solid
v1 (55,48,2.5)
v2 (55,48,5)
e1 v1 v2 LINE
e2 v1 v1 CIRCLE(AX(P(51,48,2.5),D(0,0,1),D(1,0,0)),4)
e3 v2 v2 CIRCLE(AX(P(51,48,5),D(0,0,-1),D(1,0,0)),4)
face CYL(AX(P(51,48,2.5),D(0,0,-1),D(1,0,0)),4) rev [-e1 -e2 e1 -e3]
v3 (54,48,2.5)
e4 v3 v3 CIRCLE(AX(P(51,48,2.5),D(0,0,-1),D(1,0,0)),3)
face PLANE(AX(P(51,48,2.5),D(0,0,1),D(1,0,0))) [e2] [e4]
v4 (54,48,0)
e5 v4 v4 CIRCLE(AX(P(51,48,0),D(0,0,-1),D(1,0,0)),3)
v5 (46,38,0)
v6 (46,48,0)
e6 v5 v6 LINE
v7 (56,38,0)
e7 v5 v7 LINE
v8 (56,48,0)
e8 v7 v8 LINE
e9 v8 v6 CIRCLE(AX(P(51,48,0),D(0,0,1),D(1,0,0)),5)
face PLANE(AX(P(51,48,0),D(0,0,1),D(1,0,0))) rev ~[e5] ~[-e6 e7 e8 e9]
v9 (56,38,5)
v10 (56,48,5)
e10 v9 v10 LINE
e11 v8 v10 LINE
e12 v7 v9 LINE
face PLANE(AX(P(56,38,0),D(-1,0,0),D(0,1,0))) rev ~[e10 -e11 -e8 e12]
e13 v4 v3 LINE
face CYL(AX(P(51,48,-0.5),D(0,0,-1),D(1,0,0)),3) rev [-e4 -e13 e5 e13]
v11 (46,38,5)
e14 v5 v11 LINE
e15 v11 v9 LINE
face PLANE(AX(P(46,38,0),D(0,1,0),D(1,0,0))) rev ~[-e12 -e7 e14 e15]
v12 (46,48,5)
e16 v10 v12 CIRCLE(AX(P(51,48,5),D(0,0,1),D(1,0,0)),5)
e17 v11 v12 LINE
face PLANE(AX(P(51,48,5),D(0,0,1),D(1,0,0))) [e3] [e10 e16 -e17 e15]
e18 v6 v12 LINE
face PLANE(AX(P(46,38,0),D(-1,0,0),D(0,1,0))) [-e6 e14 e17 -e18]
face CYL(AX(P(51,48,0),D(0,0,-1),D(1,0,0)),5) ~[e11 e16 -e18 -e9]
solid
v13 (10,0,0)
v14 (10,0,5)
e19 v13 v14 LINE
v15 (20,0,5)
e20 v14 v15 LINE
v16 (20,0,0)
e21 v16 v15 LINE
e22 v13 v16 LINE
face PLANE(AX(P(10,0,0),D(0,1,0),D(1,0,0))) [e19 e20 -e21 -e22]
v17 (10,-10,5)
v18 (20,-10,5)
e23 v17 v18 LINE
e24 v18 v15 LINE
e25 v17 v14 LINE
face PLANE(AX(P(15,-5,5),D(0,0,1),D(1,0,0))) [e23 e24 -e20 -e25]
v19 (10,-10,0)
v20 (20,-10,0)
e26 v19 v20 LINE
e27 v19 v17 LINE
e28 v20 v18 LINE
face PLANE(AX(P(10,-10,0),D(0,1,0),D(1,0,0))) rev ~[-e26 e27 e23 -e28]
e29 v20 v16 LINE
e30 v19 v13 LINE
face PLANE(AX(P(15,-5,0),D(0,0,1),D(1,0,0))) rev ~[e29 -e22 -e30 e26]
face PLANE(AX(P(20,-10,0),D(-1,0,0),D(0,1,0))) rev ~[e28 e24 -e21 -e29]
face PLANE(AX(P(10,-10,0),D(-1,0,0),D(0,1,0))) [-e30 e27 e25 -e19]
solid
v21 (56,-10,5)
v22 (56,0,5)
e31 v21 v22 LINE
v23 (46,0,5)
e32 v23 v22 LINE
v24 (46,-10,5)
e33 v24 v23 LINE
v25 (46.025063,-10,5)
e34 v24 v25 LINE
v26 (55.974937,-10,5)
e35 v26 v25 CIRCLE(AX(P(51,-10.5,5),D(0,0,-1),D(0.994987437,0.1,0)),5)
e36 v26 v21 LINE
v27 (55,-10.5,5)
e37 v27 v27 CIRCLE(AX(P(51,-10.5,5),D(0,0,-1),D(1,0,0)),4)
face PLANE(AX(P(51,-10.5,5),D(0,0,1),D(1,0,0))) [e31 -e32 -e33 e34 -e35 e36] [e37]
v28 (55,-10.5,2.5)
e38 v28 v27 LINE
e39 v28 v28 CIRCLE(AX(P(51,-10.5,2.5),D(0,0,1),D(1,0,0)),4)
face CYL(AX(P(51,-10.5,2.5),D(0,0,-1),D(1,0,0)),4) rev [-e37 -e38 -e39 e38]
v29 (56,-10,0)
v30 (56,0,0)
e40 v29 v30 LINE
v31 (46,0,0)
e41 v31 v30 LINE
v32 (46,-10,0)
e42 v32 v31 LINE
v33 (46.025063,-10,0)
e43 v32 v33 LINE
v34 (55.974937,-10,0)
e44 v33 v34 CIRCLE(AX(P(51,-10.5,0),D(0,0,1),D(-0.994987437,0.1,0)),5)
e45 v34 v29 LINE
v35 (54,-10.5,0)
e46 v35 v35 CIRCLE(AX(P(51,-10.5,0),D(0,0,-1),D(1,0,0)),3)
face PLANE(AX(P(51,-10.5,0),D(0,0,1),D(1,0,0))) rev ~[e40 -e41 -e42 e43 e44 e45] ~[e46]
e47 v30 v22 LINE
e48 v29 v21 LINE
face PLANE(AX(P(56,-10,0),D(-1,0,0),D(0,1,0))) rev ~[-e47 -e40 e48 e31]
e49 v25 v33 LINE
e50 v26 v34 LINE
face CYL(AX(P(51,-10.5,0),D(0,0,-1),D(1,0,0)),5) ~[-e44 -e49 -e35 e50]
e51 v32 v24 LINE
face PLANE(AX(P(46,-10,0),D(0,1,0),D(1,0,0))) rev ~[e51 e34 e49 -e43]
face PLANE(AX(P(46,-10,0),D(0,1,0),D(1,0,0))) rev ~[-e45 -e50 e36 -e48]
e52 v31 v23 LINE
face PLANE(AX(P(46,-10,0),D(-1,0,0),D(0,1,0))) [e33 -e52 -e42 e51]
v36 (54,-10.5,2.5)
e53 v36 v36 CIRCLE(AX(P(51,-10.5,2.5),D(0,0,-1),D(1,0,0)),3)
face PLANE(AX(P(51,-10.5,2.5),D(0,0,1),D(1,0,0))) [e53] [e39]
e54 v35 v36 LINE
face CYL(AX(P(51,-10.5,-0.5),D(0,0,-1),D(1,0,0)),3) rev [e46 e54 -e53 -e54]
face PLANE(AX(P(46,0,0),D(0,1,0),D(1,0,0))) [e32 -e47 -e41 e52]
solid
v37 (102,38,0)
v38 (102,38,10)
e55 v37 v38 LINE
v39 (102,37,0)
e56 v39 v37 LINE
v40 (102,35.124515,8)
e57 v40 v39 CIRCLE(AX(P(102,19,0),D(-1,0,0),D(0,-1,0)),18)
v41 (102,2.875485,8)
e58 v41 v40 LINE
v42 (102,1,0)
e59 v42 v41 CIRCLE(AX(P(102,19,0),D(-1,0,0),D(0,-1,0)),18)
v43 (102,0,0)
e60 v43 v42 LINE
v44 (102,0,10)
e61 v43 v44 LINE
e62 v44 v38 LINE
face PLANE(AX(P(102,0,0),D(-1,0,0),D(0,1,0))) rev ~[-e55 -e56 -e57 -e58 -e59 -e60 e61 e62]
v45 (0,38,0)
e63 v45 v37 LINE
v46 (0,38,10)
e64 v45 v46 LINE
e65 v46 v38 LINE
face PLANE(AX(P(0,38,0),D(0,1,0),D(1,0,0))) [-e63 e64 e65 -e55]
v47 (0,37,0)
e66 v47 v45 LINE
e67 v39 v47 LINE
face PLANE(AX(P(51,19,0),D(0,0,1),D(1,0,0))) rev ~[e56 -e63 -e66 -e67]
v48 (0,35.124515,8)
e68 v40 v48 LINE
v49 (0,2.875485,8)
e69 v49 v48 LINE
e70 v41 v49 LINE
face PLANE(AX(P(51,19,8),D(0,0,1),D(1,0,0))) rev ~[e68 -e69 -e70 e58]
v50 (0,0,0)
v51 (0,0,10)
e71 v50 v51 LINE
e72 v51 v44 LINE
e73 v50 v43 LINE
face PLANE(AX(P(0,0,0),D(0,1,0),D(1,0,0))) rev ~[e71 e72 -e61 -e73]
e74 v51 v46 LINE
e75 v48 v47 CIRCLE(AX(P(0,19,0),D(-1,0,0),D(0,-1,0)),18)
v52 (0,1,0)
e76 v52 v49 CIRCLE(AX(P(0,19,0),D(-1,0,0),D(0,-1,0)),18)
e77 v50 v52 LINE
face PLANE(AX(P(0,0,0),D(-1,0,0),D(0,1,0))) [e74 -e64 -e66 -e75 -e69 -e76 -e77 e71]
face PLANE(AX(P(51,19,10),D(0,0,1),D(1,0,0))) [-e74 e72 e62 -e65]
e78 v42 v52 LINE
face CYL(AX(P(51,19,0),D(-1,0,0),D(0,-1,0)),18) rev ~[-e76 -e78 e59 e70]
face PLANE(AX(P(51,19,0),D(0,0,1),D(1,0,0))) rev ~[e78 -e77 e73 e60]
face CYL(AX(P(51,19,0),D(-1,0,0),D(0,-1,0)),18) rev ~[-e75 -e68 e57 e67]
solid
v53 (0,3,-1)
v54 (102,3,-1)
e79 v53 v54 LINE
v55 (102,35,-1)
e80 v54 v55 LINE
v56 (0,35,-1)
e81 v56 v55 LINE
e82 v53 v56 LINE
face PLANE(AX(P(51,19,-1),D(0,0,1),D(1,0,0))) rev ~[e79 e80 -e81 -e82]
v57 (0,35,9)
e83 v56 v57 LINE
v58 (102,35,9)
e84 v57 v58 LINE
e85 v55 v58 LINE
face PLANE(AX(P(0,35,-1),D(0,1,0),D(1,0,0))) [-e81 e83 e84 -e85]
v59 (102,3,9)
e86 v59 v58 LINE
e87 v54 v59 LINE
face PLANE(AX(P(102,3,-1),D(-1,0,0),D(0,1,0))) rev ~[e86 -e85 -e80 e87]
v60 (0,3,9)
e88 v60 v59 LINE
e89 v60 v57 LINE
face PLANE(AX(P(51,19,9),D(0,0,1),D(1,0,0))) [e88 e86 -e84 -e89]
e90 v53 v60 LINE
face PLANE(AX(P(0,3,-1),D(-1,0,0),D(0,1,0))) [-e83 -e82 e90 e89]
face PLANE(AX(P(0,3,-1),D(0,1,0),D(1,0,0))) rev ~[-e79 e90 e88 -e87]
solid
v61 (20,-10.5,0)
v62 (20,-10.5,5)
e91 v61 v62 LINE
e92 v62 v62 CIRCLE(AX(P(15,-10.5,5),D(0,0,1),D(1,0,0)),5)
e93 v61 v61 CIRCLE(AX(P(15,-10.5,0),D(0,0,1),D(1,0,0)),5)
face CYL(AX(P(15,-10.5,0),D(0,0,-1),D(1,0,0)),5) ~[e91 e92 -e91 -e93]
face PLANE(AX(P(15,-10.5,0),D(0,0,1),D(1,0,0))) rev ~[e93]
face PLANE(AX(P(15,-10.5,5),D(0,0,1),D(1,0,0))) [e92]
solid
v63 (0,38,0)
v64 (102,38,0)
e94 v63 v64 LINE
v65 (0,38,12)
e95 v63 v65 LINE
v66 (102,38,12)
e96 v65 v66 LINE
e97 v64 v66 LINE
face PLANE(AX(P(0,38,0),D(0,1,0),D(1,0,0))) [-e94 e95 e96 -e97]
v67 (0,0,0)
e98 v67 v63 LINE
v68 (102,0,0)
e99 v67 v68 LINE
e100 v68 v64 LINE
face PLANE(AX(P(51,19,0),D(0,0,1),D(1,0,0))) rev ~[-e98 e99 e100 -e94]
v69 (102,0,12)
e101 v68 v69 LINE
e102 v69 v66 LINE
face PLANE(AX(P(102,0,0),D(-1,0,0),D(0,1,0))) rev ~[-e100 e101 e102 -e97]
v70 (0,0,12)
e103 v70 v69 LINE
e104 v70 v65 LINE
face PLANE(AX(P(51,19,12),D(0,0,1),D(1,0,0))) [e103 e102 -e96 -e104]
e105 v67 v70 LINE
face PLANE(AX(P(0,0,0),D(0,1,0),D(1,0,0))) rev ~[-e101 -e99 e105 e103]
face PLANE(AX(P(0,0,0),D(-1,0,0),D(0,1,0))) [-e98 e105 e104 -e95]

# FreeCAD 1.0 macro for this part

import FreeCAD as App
import Part
import Sketcher

V = App.Vector


def add_polygon(sketch, points):
    """Adds a closed chain of lines whose ends are joined by coincident constraints."""
    first, n = sketch.GeometryCount, len(points)
    for a, b in zip(points, points[1:] + points[:1]):
        sketch.addGeometry(Part.LineSegment(App.Vector(*a, 0), App.Vector(*b, 0)), False)
    for i in range(n):
        sketch.addConstraint(Sketcher.Constraint("Coincident", first + i, 2, first + (i + 1) % n, 1))

doc = App.newDocument("Part")
body = doc.addObject("PartDesign::Body", "Body")

sketch1 = body.newObject("Sketcher::SketchObject", "Sketch")
sketch1.AttachmentSupport = (doc.getObject("XY_Plane"), [""])
sketch1.MapMode = "FlatFace"
sketch1.AttachmentOffset = App.Placement(V(0, 0, 8), App.Rotation())
add_polygon(sketch1, [(0, 38), (0, 0), (102, 0), (102, 38)])
sketch1.addConstraint(Sketcher.Constraint("Vertical", 0))
sketch1.addConstraint(Sketcher.Constraint("Horizontal", 1))
sketch1.addConstraint(Sketcher.Constraint("Vertical", 2))
sketch1.addConstraint(Sketcher.Constraint("Horizontal", 3))
sketch1.addConstraint(Sketcher.Constraint("Coincident", 0, 2, -1, 1))
sketch1.addConstraint(Sketcher.Constraint("DistanceX", 1, 1, 1, 2, 102.0))
sketch1.addConstraint(Sketcher.Constraint("DistanceY", 0, 2, 0, 1, 38.0))
pad1 = body.newObject("PartDesign::Pad", "Pad")
pad1.Profile = sketch1
pad1.Length = 10
body2 = doc.addObject("PartDesign::Body", "Body001")

sketch2 = body2.newObject("Sketcher::SketchObject", "Sketch001")
sketch2.AttachmentSupport = (doc.getObject("XY_Plane001"), [""])
sketch2.MapMode = "FlatFace"
add_polygon(sketch2, [(0, 19), (102, 19), (102, 1), (0, 1)])
sketch2.addGeometry(Part.LineSegment(V(102, 19, 0), V(0, 19, 0)), True)
sketch2.addConstraint(Sketcher.Constraint("Horizontal", 0))
sketch2.addConstraint(Sketcher.Constraint("Vertical", 1))
sketch2.addConstraint(Sketcher.Constraint("Horizontal", 2))
sketch2.addConstraint(Sketcher.Constraint("Vertical", 3))
sketch2.addConstraint(Sketcher.Constraint("Horizontal", 4))
sketch2.addConstraint(Sketcher.Constraint("Coincident", 4, 1, 0, 2))
sketch2.addConstraint(Sketcher.Constraint("PointOnObject", 2, 2, -2))
sketch2.addConstraint(Sketcher.Constraint("PointOnObject", 4, 2, -2))
sketch2.addConstraint(Sketcher.Constraint("DistanceX", 0, 1, 0, 2, 102.0))
sketch2.addConstraint(Sketcher.Constraint("DistanceY", 1, 2, 1, 1, 18.0))
sketch2.addConstraint(Sketcher.Constraint("DistanceY", -1, 1, 0, 2, 19.0))
revolution = body2.newObject("PartDesign::Revolution", "Revolution")
revolution.Profile = sketch2
revolution.ReferenceAxis = (sketch2, ["Axis0"])
revolution.Angle = 180
doc.recompute()

boolean = body2.newObject("PartDesign::Boolean", "Boolean")
boolean.Type = "Cut"
boolean.addObjects([body])
body3 = doc.addObject("PartDesign::Body", "Body002")

sketch3 = body3.newObject("Sketcher::SketchObject", "Sketch002")
sketch3.AttachmentSupport = (doc.getObject("XY_Plane002"), [""])
sketch3.MapMode = "FlatFace"
add_polygon(sketch3, [(0, 38), (0, 0), (102, 0), (102, 38)])
sketch3.addConstraint(Sketcher.Constraint("Vertical", 0))
sketch3.addConstraint(Sketcher.Constraint("Horizontal", 1))
sketch3.addConstraint(Sketcher.Constraint("Vertical", 2))
sketch3.addConstraint(Sketcher.Constraint("Horizontal", 3))
sketch3.addConstraint(Sketcher.Constraint("Coincident", 0, 2, -1, 1))
sketch3.addConstraint(Sketcher.Constraint("DistanceX", 1, 1, 1, 2, 102.0))
sketch3.addConstraint(Sketcher.Constraint("DistanceY", 0, 2, 0, 1, 38.0))
pad2 = body3.newObject("PartDesign::Pad", "Pad001")
pad2.Profile = sketch3
pad2.Length = 10
doc.recompute()

boolean2 = body3.newObject("PartDesign::Boolean", "Boolean001")
boolean2.Type = "Cut"
boolean2.addObjects([body2])
body4 = doc.addObject("PartDesign::Body", "Body003")

sketch4 = body4.newObject("Sketcher::SketchObject", "Sketch003")
sketch4.AttachmentSupport = (doc.getObject("XY_Plane003"), [""])
sketch4.MapMode = "FlatFace"
add_polygon(sketch4, [(10, 0), (10, -10), (20, -10), (20, 0)])
sketch4.addConstraint(Sketcher.Constraint("Vertical", 0))
sketch4.addConstraint(Sketcher.Constraint("Horizontal", 1))
sketch4.addConstraint(Sketcher.Constraint("Vertical", 2))
sketch4.addConstraint(Sketcher.Constraint("Horizontal", 3))
sketch4.addConstraint(Sketcher.Constraint("PointOnObject", 2, 2, -1))
sketch4.addConstraint(Sketcher.Constraint("Equal", 3, 0))
sketch4.addConstraint(Sketcher.Constraint("DistanceX", 1, 1, 1, 2, 10.0))
sketch4.addConstraint(Sketcher.Constraint("DistanceX", -1, 1, 0, 2, 10.0))
pad3 = body4.newObject("PartDesign::Pad", "Pad002")
pad3.Profile = sketch4
pad3.Length = 5
body5 = doc.addObject("PartDesign::Body", "Body004")

sketch5 = body5.newObject("Sketcher::SketchObject", "Sketch004")
sketch5.AttachmentSupport = (doc.getObject("XY_Plane004"), [""])
sketch5.MapMode = "FlatFace"
sketch5.addGeometry(Part.Circle(V(15, -10, 0), V(0, 0, 1), 5), False)
sketch5.addConstraint(Sketcher.Constraint("Diameter", 0, 10.0))
sketch5.addConstraint(Sketcher.Constraint("DistanceX", -1, 1, 0, 3, 15.0))
sketch5.addConstraint(Sketcher.Constraint("DistanceY", 0, 3, -1, 1, 10.5))
pad4 = body5.newObject("PartDesign::Pad", "Pad003")
pad4.Profile = sketch5
pad4.Length = 5
body6 = doc.addObject("PartDesign::Body", "Body005")

sketch6 = body6.newObject("Sketcher::SketchObject", "Sketch005")
sketch6.AttachmentSupport = (doc.getObject("XY_Plane005"), [""])
sketch6.MapMode = "FlatFace"
sketch6.AttachmentOffset = App.Placement(V(0, 0, -0.5), App.Rotation())
sketch6.addGeometry(Part.Circle(V(51, -10.5, 0), V(0, 0, 1), 3), False)
sketch6.addConstraint(Sketcher.Constraint("Diameter", 0, 6.0))
sketch6.addConstraint(Sketcher.Constraint("DistanceX", -1, 1, 0, 3, 51.0))
sketch6.addConstraint(Sketcher.Constraint("DistanceY", 0, 3, -1, 1, 10.5))
pad5 = body6.newObject("PartDesign::Pad", "Pad004")
pad5.Profile = sketch6
pad5.Length = 5
body7 = doc.addObject("PartDesign::Body", "Body006")

sketch7 = body7.newObject("Sketcher::SketchObject", "Sketch006")
sketch7.AttachmentSupport = (doc.getObject("XY_Plane006"), [""])
sketch7.MapMode = "FlatFace"
sketch7.AttachmentOffset = App.Placement(V(0, 0, 2.5), App.Rotation())
sketch7.addGeometry(Part.Circle(V(51, -10.5, 0), V(0, 0, 1), 4), False)
sketch7.addConstraint(Sketcher.Constraint("Diameter", 0, 8.0))
sketch7.addConstraint(Sketcher.Constraint("DistanceX", -1, 1, 0, 3, 51.0))
sketch7.addConstraint(Sketcher.Constraint("DistanceY", 0, 3, -1, 1, 10.5))
pad6 = body7.newObject("PartDesign::Pad", "Pad005")
pad6.Profile = sketch7
pad6.Length = 5
body8 = doc.addObject("PartDesign::Body", "Body007")

sketch8 = body8.newObject("Sketcher::SketchObject", "Sketch007")
sketch8.AttachmentSupport = (doc.getObject("XY_Plane007"), [""])
sketch8.MapMode = "FlatFace"
sketch8.addGeometry(Part.Circle(V(51, -10, 0), V(0, 0, 1), 5), False)
sketch8.addConstraint(Sketcher.Constraint("Diameter", 0, 10.0))
sketch8.addConstraint(Sketcher.Constraint("DistanceX", -1, 1, 0, 3, 51.0))
sketch8.addConstraint(Sketcher.Constraint("DistanceY", 0, 3, -1, 1, 10.5))
pad7 = body8.newObject("PartDesign::Pad", "Pad006")
pad7.Profile = sketch8
pad7.Length = 5
body9 = doc.addObject("PartDesign::Body", "Body008")

sketch9 = body9.newObject("Sketcher::SketchObject", "Sketch008")
sketch9.AttachmentSupport = (doc.getObject("XY_Plane008"), [""])
sketch9.MapMode = "FlatFace"
add_polygon(sketch9, [(46, 0), (46, -10), (56, -10), (56, 0)])
sketch9.addConstraint(Sketcher.Constraint("Vertical", 0))
sketch9.addConstraint(Sketcher.Constraint("Horizontal", 1))
sketch9.addConstraint(Sketcher.Constraint("Vertical", 2))
sketch9.addConstraint(Sketcher.Constraint("Horizontal", 3))
sketch9.addConstraint(Sketcher.Constraint("PointOnObject", 2, 2, -1))
sketch9.addConstraint(Sketcher.Constraint("Equal", 3, 0))
sketch9.addConstraint(Sketcher.Constraint("DistanceX", 1, 1, 1, 2, 10.0))
sketch9.addConstraint(Sketcher.Constraint("DistanceX", -1, 1, 0, 2, 46.0))
pad8 = body9.newObject("PartDesign::Pad", "Pad007")
pad8.Profile = sketch9
pad8.Length = 5
doc.recompute()

boolean3 = body9.newObject("PartDesign::Boolean", "Boolean002")
boolean3.Type = "Fuse"
boolean3.addObjects([body8])
doc.recompute()

boolean4 = body9.newObject("PartDesign::Boolean", "Boolean003")
boolean4.Type = "Cut"
boolean4.addObjects([body7])
doc.recompute()

boolean5 = body9.newObject("PartDesign::Boolean", "Boolean004")
boolean5.Type = "Cut"
boolean5.addObjects([body6])
body10 = doc.addObject("PartDesign::Body", "Body009")

sketch10 = body10.newObject("Sketcher::SketchObject", "Sketch009")
sketch10.AttachmentSupport = (doc.getObject("XY_Plane009"), [""])
sketch10.MapMode = "FlatFace"
sketch10.AttachmentOffset = App.Placement(V(0, 0, -0.5), App.Rotation())
sketch10.addGeometry(Part.Circle(V(51, 48, 0), V(0, 0, 1), 3), False)
sketch10.addConstraint(Sketcher.Constraint("Diameter", 0, 6.0))
sketch10.addConstraint(Sketcher.Constraint("DistanceX", -1, 1, 0, 3, 51.0))
sketch10.addConstraint(Sketcher.Constraint("DistanceY", -1, 1, 0, 3, 48.0))
pad9 = body10.newObject("PartDesign::Pad", "Pad008")
pad9.Profile = sketch10
pad9.Length = 5
body11 = doc.addObject("PartDesign::Body", "Body010")

sketch11 = body11.newObject("Sketcher::SketchObject", "Sketch010")
sketch11.AttachmentSupport = (doc.getObject("XY_Plane010"), [""])
sketch11.MapMode = "FlatFace"
sketch11.AttachmentOffset = App.Placement(V(0, 0, 2.5), App.Rotation())
sketch11.addGeometry(Part.Circle(V(51, 48, 0), V(0, 0, 1), 4), False)
sketch11.addConstraint(Sketcher.Constraint("Diameter", 0, 8.0))
sketch11.addConstraint(Sketcher.Constraint("DistanceX", -1, 1, 0, 3, 51.0))
sketch11.addConstraint(Sketcher.Constraint("DistanceY", -1, 1, 0, 3, 48.0))
pad10 = body11.newObject("PartDesign::Pad", "Pad009")
pad10.Profile = sketch11
pad10.Length = 5
body12 = doc.addObject("PartDesign::Body", "Body011")

sketch12 = body12.newObject("Sketcher::SketchObject", "Sketch011")
sketch12.AttachmentSupport = (doc.getObject("XY_Plane011"), [""])
sketch12.MapMode = "FlatFace"
sketch12.addGeometry(Part.Circle(V(51, 48, 0), V(0, 0, 1), 5), False)
sketch12.addConstraint(Sketcher.Constraint("Diameter", 0, 10.0))
sketch12.addConstraint(Sketcher.Constraint("DistanceX", -1, 1, 0, 3, 51.0))
sketch12.addConstraint(Sketcher.Constraint("DistanceY", -1, 1, 0, 3, 48.0))
pad11 = body12.newObject("PartDesign::Pad", "Pad010")
pad11.Profile = sketch12
pad11.Length = 5
body13 = doc.addObject("PartDesign::Body", "Body012")

sketch13 = body13.newObject("Sketcher::SketchObject", "Sketch012")
sketch13.AttachmentSupport = (doc.getObject("XY_Plane012"), [""])
sketch13.MapMode = "FlatFace"
add_polygon(sketch13, [(46, 48), (46, 38), (56, 38), (56, 48)])
sketch13.addConstraint(Sketcher.Constraint("Vertical", 0))
sketch13.addConstraint(Sketcher.Constraint("Horizontal", 1))
sketch13.addConstraint(Sketcher.Constraint("Vertical", 2))
sketch13.addConstraint(Sketcher.Constraint("Horizontal", 3))
sketch13.addConstraint(Sketcher.Constraint("Equal", 3, 0))
sketch13.addConstraint(Sketcher.Constraint("DistanceX", 1, 1, 1, 2, 10.0))
sketch13.addConstraint(Sketcher.Constraint("DistanceX", -1, 1, 0, 2, 46.0))
sketch13.addConstraint(Sketcher.Constraint("DistanceY", -1, 1, 0, 2, 38.0))
pad12 = body13.newObject("PartDesign::Pad", "Pad011")
pad12.Profile = sketch13
pad12.Length = 5
doc.recompute()

boolean6 = body13.newObject("PartDesign::Boolean", "Boolean005")
boolean6.Type = "Fuse"
boolean6.addObjects([body12])
doc.recompute()

boolean7 = body13.newObject("PartDesign::Boolean", "Boolean006")
boolean7.Type = "Cut"
boolean7.addObjects([body11])
doc.recompute()

boolean8 = body13.newObject("PartDesign::Boolean", "Boolean007")
boolean8.Type = "Cut"
boolean8.addObjects([body10])
body14 = doc.addObject("PartDesign::Body", "Body013")

sketch14 = body14.newObject("Sketcher::SketchObject", "Sketch013")
sketch14.AttachmentSupport = (doc.getObject("XY_Plane013"), [""])
sketch14.MapMode = "FlatFace"
add_polygon(sketch14, [(0, 38), (0, 0), (102, 0), (102, 38)])
sketch14.addConstraint(Sketcher.Constraint("Vertical", 0))
sketch14.addConstraint(Sketcher.Constraint("Horizontal", 1))
sketch14.addConstraint(Sketcher.Constraint("Vertical", 2))
sketch14.addConstraint(Sketcher.Constraint("Horizontal", 3))
sketch14.addConstraint(Sketcher.Constraint("Coincident", 0, 2, -1, 1))
sketch14.addConstraint(Sketcher.Constraint("DistanceX", 1, 1, 1, 2, 102.0))
sketch14.addConstraint(Sketcher.Constraint("DistanceY", 0, 2, 0, 1, 38.0))
pad13 = body14.newObject("PartDesign::Pad", "Pad012")
pad13.Profile = sketch14
pad13.Length = 12
body15 = doc.addObject("PartDesign::Body", "Body014")

sketch15 = body15.newObject("Sketcher::SketchObject", "Sketch014")
sketch15.AttachmentSupport = (doc.getObject("XY_Plane014"), [""])
sketch15.MapMode = "FlatFace"
sketch15.AttachmentOffset = App.Placement(V(0, 0, -1), App.Rotation())
add_polygon(sketch15, [(0, 35), (0, 3), (102, 3), (102, 35)])
sketch15.addConstraint(Sketcher.Constraint("Vertical", 0))
sketch15.addConstraint(Sketcher.Constraint("Horizontal", 1))
sketch15.addConstraint(Sketcher.Constraint("Vertical", 2))
sketch15.addConstraint(Sketcher.Constraint("Horizontal", 3))
sketch15.addConstraint(Sketcher.Constraint("PointOnObject", 0, 2, -2))
sketch15.addConstraint(Sketcher.Constraint("DistanceX", 1, 1, 1, 2, 102.0))
sketch15.addConstraint(Sketcher.Constraint("DistanceY", 0, 2, 0, 1, 32.0))
sketch15.addConstraint(Sketcher.Constraint("DistanceY", -1, 1, 0, 2, 3.0))
pad14 = body15.newObject("PartDesign::Pad", "Pad013")
pad14.Profile = sketch15
pad14.Length = 10

doc.recompute()
